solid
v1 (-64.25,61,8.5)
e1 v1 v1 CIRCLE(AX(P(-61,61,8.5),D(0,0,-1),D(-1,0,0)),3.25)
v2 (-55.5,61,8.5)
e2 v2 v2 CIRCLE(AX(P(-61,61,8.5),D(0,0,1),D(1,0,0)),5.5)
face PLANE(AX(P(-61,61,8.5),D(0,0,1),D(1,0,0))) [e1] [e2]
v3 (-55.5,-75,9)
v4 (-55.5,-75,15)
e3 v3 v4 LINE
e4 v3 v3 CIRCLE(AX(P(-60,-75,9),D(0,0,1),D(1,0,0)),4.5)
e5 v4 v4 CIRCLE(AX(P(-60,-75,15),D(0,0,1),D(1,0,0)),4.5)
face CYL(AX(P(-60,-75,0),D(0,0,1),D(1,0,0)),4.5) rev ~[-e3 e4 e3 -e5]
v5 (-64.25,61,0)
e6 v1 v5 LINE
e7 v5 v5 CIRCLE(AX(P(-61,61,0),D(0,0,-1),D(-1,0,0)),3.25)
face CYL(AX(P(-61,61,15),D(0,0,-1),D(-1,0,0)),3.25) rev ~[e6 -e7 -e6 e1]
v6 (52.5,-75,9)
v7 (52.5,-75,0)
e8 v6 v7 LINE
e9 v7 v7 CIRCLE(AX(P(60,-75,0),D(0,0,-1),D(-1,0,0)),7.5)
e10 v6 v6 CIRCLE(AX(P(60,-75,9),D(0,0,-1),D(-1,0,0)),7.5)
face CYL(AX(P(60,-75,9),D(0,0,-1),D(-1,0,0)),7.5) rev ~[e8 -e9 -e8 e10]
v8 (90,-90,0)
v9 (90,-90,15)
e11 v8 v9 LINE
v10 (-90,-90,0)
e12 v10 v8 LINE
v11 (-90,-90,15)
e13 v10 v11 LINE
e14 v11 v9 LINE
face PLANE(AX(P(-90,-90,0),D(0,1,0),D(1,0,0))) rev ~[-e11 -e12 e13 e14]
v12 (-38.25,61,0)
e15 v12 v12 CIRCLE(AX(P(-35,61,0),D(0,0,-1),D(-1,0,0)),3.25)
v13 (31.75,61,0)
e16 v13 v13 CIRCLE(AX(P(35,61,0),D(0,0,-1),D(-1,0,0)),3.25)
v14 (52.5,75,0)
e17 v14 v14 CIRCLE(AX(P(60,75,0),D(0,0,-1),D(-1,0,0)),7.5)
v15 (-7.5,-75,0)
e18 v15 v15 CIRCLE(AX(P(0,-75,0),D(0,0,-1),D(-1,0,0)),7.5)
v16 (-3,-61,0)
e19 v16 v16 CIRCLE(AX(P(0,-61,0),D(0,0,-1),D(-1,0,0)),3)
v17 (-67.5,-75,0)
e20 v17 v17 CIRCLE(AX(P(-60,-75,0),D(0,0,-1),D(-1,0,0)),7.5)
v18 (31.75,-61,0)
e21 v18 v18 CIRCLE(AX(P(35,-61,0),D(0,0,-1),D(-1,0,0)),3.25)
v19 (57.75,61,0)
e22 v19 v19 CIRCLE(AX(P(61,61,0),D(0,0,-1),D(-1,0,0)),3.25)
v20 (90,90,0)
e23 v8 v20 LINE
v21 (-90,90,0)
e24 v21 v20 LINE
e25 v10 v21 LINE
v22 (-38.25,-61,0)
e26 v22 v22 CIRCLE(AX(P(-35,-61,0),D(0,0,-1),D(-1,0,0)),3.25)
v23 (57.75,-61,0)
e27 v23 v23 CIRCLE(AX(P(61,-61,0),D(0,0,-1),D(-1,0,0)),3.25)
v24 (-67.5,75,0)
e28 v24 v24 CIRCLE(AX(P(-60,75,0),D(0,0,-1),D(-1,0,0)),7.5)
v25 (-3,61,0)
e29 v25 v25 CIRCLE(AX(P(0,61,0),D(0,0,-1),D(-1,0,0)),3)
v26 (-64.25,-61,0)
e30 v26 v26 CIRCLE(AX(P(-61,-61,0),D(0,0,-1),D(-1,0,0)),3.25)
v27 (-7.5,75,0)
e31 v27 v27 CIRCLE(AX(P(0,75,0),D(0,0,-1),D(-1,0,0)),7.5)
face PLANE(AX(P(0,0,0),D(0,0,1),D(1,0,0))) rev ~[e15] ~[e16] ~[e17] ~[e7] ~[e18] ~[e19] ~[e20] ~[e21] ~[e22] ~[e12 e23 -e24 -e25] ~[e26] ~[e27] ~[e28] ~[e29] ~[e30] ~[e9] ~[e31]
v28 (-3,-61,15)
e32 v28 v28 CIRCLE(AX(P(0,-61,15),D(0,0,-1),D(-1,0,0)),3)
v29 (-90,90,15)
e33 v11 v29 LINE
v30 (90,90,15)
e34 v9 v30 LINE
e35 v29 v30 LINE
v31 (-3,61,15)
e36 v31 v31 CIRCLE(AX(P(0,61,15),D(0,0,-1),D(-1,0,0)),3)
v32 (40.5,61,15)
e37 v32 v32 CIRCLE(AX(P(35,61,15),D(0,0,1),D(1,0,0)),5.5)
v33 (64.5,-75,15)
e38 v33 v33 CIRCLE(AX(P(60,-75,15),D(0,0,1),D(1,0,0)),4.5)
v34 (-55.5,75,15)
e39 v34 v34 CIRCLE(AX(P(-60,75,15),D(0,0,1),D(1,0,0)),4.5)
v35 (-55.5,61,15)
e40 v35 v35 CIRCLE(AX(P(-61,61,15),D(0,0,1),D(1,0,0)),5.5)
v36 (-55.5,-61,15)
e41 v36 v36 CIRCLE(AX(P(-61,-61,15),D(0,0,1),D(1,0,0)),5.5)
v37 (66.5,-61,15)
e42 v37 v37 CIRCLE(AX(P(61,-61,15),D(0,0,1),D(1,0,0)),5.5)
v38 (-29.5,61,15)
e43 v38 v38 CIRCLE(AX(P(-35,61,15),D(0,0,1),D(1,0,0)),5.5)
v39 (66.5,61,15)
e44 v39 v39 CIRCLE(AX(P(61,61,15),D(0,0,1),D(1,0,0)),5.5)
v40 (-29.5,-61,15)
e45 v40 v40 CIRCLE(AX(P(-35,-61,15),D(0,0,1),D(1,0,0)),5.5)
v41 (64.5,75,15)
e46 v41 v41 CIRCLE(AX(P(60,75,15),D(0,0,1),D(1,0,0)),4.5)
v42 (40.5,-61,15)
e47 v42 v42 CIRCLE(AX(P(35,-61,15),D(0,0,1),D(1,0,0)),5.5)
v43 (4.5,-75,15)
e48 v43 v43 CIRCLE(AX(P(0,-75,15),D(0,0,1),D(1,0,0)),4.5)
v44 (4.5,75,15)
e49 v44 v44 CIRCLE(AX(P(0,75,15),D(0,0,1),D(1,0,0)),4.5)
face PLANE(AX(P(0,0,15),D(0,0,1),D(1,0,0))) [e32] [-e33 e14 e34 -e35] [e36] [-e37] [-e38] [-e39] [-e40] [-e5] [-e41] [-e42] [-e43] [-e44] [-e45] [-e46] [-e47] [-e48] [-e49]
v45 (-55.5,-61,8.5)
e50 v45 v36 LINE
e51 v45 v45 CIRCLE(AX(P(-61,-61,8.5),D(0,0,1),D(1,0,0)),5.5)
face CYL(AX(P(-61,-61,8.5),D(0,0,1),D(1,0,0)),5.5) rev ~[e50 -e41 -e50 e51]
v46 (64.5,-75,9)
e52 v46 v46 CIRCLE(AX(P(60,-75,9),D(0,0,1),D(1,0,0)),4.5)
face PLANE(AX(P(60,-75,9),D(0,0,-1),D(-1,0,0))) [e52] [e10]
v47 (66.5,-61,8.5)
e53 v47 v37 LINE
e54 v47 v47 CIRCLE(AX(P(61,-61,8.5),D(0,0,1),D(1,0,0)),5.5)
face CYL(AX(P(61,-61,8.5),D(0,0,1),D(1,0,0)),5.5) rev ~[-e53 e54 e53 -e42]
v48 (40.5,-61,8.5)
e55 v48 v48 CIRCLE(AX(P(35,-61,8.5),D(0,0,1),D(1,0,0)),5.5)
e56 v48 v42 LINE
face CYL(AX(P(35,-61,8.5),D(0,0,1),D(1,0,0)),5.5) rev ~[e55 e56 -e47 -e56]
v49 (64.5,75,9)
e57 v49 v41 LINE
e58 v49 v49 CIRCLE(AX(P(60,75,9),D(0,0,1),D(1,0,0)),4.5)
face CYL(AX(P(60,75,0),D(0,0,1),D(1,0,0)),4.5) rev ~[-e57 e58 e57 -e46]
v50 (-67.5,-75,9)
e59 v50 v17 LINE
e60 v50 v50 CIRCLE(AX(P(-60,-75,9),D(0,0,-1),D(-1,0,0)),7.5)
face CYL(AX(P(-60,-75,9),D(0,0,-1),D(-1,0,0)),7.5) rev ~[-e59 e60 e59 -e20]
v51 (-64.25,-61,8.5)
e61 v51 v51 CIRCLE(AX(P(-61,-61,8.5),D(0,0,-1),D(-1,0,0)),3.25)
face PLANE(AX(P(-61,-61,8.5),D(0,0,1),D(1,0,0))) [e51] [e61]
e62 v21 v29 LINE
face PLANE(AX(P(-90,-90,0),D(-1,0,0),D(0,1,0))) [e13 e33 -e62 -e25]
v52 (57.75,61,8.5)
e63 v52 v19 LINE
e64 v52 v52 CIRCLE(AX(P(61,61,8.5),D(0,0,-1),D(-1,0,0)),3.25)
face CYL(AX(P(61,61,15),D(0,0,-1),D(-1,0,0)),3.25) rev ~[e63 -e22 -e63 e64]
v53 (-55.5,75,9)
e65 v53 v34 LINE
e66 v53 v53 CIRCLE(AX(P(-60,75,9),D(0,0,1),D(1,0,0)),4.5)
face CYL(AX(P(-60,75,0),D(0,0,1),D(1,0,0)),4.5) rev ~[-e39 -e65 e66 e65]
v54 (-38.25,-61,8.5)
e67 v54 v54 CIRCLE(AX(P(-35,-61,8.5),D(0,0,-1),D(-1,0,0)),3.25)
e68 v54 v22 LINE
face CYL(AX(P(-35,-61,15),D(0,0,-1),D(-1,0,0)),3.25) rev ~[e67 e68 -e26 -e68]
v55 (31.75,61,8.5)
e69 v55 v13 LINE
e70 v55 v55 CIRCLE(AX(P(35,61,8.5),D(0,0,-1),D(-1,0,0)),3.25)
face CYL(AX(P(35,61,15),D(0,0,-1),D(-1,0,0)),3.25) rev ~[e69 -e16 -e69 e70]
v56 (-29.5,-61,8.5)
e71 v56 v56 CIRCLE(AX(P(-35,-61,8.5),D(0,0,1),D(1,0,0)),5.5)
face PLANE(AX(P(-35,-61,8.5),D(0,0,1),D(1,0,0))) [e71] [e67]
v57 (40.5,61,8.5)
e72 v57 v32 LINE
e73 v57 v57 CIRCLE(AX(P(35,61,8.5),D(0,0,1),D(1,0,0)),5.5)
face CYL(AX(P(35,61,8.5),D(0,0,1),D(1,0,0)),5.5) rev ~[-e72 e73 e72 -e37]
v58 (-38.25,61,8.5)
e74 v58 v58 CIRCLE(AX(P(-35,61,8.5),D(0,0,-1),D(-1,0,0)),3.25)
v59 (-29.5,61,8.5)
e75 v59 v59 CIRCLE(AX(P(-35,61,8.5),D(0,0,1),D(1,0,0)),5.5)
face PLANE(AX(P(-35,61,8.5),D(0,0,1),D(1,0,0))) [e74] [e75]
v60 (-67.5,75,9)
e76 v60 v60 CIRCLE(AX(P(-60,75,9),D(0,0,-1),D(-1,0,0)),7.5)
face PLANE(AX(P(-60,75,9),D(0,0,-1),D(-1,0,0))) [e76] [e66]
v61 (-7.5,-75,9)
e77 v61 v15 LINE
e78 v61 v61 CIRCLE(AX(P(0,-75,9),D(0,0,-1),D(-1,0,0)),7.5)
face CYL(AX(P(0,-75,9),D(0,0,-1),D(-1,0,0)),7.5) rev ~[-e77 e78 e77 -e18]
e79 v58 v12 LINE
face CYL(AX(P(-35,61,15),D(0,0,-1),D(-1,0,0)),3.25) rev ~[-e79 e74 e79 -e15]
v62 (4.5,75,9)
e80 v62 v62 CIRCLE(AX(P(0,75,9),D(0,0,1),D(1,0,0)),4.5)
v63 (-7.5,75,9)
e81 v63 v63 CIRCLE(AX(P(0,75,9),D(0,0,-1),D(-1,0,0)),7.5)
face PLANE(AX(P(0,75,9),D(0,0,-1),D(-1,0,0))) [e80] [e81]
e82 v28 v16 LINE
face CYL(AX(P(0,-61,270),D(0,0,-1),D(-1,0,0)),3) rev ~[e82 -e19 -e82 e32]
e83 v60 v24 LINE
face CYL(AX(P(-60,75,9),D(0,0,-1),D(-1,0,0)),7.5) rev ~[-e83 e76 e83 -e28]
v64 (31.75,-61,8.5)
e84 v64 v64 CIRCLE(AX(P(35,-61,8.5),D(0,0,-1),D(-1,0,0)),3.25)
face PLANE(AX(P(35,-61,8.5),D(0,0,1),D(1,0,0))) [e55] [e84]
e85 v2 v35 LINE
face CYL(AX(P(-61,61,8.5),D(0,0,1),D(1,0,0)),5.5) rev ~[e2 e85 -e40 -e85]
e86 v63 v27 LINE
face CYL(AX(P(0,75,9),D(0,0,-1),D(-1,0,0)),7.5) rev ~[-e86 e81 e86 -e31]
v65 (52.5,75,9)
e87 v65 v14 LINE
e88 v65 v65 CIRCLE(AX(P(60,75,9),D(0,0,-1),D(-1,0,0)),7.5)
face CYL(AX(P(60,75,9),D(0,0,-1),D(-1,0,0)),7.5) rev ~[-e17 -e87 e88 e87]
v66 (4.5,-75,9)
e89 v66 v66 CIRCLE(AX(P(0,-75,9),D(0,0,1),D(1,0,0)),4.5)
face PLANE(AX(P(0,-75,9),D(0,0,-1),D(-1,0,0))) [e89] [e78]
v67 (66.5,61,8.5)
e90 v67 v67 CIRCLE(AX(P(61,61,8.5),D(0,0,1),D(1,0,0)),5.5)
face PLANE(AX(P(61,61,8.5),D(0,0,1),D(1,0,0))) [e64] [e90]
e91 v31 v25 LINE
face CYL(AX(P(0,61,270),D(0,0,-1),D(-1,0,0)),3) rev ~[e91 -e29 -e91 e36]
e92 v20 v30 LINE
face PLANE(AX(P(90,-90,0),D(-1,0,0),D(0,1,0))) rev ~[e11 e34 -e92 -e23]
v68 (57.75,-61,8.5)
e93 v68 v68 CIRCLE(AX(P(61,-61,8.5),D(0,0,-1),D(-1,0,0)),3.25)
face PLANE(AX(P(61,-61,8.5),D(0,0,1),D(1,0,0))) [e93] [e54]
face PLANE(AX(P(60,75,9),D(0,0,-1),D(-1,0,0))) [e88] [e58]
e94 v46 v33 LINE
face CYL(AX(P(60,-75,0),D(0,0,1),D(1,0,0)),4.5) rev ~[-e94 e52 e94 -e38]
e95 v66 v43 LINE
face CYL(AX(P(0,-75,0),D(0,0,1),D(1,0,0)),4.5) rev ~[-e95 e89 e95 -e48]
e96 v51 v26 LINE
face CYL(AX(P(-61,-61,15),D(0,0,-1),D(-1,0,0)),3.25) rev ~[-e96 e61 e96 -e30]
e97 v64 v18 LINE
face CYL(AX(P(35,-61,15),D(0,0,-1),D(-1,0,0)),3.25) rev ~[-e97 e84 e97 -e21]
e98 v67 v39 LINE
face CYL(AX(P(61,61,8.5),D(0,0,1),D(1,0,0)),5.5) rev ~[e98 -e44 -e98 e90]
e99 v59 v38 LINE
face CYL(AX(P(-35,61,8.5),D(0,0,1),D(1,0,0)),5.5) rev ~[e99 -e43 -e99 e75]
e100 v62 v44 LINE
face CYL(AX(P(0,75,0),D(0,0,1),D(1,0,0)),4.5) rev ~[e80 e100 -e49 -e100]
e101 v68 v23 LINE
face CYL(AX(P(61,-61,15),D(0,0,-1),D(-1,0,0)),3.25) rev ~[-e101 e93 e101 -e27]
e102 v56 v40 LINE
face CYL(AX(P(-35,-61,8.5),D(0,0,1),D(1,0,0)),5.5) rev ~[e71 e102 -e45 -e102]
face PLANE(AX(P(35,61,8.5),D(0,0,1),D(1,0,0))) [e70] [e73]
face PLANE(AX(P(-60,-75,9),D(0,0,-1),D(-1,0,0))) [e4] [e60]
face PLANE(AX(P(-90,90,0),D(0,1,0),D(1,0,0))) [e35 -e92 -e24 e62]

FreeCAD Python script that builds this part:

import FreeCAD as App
import Part
import Sketcher

V = App.Vector


def add_polygon(sketch, points):
    """Adds a closed chain of lines whose ends are joined by coincident constraints."""
    first, n = sketch.GeometryCount, len(points)
    for a, b in zip(points, points[1:] + points[:1]):
        sketch.addGeometry(Part.LineSegment(App.Vector(*a, 0), App.Vector(*b, 0)), False)
    for i in range(n):
        sketch.addConstraint(Sketcher.Constraint("Coincident", first + i, 2, first + (i + 1) % n, 1))

doc = App.newDocument("Part")
body = doc.addObject("PartDesign::Body", "Body")

sketch1 = doc.addObject("Sketcher::SketchObject", "Sketch")
body.addObject(sketch1)
sketch1.AttachmentSupport = (doc.XY_Plane, [""])
sketch1.MapMode = "FlatFace"
add_polygon(sketch1, [(-90, 90), (-90, -90), (90, -90), (90, 90)])
sketch1.addConstraint([
    Sketcher.Constraint("Vertical", 0),
    Sketcher.Constraint("Horizontal", 1),
    Sketcher.Constraint("Vertical", 2),
    Sketcher.Constraint("Horizontal", 3),
    Sketcher.Constraint("Symmetric", 0, 2, 2, 2, -1, 1),
    Sketcher.Constraint("Equal", 3, 0),
    Sketcher.Constraint("DistanceX", 1, 1, 1, 2, 180.0),
])
pad1 = doc.addObject("PartDesign::Pad", "Pad")
body.addObject(pad1)
pad1.Profile = sketch1
pad1.Length = 15

sketch2 = doc.addObject("Sketcher::SketchObject", "Sketch001")
body.addObject(sketch2)
sketch2.AttachmentSupport = (doc.XY_Plane, [""])
sketch2.MapMode = "FlatFace"
sketch2.AttachmentOffset = App.Placement(V(0, 0, 15), App.Rotation())
sketch2.addGeometry([
    Part.Circle(V(-61, 61, 0), V(0, 0, 1), 3.2),
    Part.Circle(V(35, 61, 0), V(0, 0, 1), 3.2),
    Part.Circle(V(-35, 61, 0), V(0, 0, 1), 3.2),
    Part.Circle(V(-61, -61, 0), V(0, 0, 1), 3.2),
    Part.Circle(V(-35, -61, 0), V(0, 0, 1), 3.2),
    Part.Circle(V(35, -61, 0), V(0, 0, 1), 3.2),
    Part.Circle(V(61, -61, 0), V(0, 0, 1), 3.2),
    Part.Circle(V(61, 61, 0), V(0, 0, 1), 3.2),
], False)
sketch2.addConstraint([
    Sketcher.Constraint("Equal", 0, 1),
    Sketcher.Constraint("Equal", 1, 2),
    Sketcher.Constraint("Equal", 2, 3),
    Sketcher.Constraint("Equal", 3, 4),
    Sketcher.Constraint("Equal", 4, 5),
    Sketcher.Constraint("Equal", 5, 6),
    Sketcher.Constraint("Equal", 6, 7),
    Sketcher.Constraint("Symmetric", 1, 3, 4, 3, -1, 1),
    Sketcher.Constraint("Symmetric", 2, 3, 5, 3, -1, 1),
    Sketcher.Constraint("Symmetric", 0, 3, 6, 3, -1, 1),
    Sketcher.Constraint("Symmetric", 3, 3, 7, 3, -1, 1),
    Sketcher.Constraint("Symmetric", 1, 3, 2, 3, -2),
    Sketcher.Constraint("Symmetric", 3, 3, 6, 3, -2),
    Sketcher.Constraint("Horizontal", 0, 3, 1, 3),
    Sketcher.Constraint("Diameter", 0, 6.5),
    Sketcher.Constraint("DistanceX", 0, 3, -1, 1, 61.0),
    Sketcher.Constraint("DistanceY", -1, 1, 0, 3, 61.0),
    Sketcher.Constraint("DistanceX", -1, 1, 1, 3, 35.0),
])
doc.recompute()
hole = doc.addObject("PartDesign::Hole", "Hole")
body.addObject(hole)
hole.Profile = sketch2
hole.ThreadType = "None"
hole.Diameter = 6.5
hole.DepthType = "ThroughAll"
hole.HoleCutType = "Counterbore"
hole.HoleCutDiameter = 11
hole.HoleCutDepth = 6.5

sketch3 = doc.addObject("Sketcher::SketchObject", "Sketch002")
body.addObject(sketch3)
sketch3.AttachmentSupport = (doc.XY_Plane, [""])
sketch3.MapMode = "FlatFace"
sketch3.AttachmentOffset = App.Placement(V(0, 0, 15), App.Rotation())
sketch3.addGeometry([
    Part.Circle(V(0, 61, 0), V(0, 0, 1), 3),
    Part.Circle(V(0, -61, 0), V(0, 0, 1), 3),
], False)
sketch3.addConstraint([
    Sketcher.Constraint("Equal", 0, 1),
    Sketcher.Constraint("Symmetric", 0, 3, 1, 3, -1, 1),
    Sketcher.Constraint("PointOnObject", 0, 3, -2),
    Sketcher.Constraint("Diameter", 0, 6.0),
    Sketcher.Constraint("DistanceY", -1, 1, 0, 3, 61.0),
])
doc.recompute()
hole2 = doc.addObject("PartDesign::Hole", "Hole001")
body.addObject(hole2)
hole2.Profile = sketch3
hole2.ThreadType = "None"
hole2.Diameter = 6
hole2.DepthType = "ThroughAll"

sketch4 = doc.addObject("Sketcher::SketchObject", "Sketch003")
body.addObject(sketch4)
sketch4.AttachmentSupport = (doc.XY_Plane, [""])
sketch4.MapMode = "FlatFace"
sketch4.addGeometry([
    Part.Circle(V(60, 75, 0), V(0, 0, 1), 4.5),
    Part.Circle(V(0, 75, 0), V(0, 0, 1), 4.5),
    Part.Circle(V(-60, 75, 0), V(0, 0, 1), 4.5),
    Part.Circle(V(-60, -75, 0), V(0, 0, 1), 4.5),
    Part.Circle(V(0, -75, 0), V(0, 0, 1), 4.5),
    Part.Circle(V(60, -75, 0), V(0, 0, 1), 4.5),
], False)
sketch4.addConstraint([
    Sketcher.Constraint("Equal", 0, 1),
    Sketcher.Constraint("Equal", 1, 2),
    Sketcher.Constraint("Equal", 2, 3),
    Sketcher.Constraint("Equal", 3, 4),
    Sketcher.Constraint("Equal", 4, 5),
    Sketcher.Constraint("Symmetric", 0, 3, 3, 3, -1, 1),
    Sketcher.Constraint("Symmetric", 1, 3, 4, 3, -1, 1),
    Sketcher.Constraint("Symmetric", 2, 3, 5, 3, -1, 1),
    Sketcher.Constraint("Symmetric", 0, 3, 2, 3, -2),
    Sketcher.Constraint("PointOnObject", 1, 3, -2),
    Sketcher.Constraint("Horizontal", 0, 3, 1, 3),
    Sketcher.Constraint("Diameter", 0, 9.0),
    Sketcher.Constraint("DistanceX", -1, 1, 0, 3, 60.0),
    Sketcher.Constraint("DistanceY", -1, 1, 0, 3, 75.0),
])
doc.recompute()
hole3 = doc.addObject("PartDesign::Hole", "Hole002")
body.addObject(hole3)
hole3.Profile = sketch4
hole3.ThreadType = "None"
hole3.Diameter = 9
hole3.DepthType = "ThroughAll"
hole3.HoleCutType = "Counterbore"
hole3.HoleCutDiameter = 15
hole3.HoleCutDepth = 9
hole3.Reversed = True

doc.recompute()
